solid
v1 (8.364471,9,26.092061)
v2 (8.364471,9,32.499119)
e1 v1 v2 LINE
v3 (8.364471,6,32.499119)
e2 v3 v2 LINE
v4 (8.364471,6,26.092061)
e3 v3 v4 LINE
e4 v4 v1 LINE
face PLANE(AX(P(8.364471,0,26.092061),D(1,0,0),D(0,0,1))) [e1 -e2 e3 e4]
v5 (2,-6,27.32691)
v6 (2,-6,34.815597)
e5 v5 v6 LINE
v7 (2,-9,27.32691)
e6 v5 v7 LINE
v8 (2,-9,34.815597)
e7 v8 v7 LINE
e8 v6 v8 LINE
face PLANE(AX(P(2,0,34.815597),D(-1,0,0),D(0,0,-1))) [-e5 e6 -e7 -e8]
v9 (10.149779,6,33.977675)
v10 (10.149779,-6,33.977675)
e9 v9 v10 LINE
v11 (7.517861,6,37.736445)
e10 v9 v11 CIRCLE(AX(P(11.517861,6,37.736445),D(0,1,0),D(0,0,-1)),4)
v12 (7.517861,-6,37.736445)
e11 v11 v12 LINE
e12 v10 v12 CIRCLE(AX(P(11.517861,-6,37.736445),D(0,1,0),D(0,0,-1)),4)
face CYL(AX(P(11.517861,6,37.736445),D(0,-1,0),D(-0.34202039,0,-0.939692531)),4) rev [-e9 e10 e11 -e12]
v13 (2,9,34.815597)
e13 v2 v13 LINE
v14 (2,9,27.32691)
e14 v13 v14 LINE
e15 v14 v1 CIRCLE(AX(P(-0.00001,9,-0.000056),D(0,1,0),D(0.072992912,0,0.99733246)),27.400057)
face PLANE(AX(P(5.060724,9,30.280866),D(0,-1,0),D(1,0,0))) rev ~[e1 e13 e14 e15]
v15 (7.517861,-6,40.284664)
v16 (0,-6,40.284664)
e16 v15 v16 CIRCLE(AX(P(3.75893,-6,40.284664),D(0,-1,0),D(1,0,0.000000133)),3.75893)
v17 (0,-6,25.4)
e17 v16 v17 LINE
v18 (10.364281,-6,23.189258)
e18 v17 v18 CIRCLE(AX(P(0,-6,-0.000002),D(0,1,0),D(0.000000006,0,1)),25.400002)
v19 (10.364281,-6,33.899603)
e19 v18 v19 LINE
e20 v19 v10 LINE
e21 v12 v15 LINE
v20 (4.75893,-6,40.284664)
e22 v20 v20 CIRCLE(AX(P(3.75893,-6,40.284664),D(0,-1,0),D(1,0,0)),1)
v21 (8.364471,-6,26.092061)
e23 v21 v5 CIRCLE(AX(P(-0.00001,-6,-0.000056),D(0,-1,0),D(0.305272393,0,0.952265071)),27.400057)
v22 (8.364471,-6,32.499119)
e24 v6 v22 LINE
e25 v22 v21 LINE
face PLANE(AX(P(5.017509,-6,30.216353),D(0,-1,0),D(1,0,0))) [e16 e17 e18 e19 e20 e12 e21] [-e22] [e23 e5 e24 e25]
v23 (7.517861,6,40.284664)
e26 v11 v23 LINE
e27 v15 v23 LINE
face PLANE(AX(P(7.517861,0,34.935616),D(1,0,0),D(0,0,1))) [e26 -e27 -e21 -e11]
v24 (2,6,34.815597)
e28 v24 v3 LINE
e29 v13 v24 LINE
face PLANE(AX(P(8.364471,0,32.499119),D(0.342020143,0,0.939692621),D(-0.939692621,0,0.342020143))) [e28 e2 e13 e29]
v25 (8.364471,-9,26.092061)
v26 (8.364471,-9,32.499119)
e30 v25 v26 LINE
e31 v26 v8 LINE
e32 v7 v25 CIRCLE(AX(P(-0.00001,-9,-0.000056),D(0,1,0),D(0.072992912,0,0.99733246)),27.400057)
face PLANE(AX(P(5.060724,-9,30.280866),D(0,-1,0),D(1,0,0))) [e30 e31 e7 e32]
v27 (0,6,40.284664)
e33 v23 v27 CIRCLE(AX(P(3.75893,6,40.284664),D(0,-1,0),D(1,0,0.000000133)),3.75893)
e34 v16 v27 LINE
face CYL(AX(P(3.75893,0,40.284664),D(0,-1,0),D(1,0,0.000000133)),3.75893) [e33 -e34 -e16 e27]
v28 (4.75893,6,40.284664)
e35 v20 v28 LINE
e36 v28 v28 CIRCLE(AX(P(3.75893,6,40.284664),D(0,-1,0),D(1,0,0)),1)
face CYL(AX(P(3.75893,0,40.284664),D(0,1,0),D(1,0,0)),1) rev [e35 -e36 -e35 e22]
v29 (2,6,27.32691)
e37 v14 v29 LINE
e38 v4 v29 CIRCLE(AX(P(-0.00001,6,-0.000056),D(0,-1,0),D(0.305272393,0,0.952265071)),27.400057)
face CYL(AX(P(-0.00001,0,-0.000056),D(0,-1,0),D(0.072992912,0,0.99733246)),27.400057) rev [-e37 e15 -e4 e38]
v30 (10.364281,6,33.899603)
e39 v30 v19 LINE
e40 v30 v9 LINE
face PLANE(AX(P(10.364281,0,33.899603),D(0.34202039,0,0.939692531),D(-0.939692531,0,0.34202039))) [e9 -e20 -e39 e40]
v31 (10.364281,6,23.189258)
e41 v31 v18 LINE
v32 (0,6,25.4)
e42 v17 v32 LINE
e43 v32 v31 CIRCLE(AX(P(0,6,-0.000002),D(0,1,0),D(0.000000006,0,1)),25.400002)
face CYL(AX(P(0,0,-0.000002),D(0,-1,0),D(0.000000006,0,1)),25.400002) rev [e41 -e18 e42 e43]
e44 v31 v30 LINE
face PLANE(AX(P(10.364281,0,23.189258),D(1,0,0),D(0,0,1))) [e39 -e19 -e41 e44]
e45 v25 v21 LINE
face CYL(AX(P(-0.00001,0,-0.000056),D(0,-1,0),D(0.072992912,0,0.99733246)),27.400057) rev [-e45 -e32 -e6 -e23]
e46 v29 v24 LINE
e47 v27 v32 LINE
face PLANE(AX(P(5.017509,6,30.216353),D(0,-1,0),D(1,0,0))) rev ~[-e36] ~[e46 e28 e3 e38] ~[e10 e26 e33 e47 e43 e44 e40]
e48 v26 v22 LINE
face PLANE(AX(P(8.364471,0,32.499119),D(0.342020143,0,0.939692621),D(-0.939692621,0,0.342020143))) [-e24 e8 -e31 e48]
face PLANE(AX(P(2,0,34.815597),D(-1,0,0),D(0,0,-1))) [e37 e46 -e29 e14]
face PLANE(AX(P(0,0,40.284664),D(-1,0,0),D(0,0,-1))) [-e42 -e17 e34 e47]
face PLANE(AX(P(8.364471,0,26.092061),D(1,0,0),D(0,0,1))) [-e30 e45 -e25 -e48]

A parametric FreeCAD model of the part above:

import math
import FreeCAD as App
import Part
import Sketcher
from FreeCAD import Vector
Q = App.Units.Quantity


def edges_at(feature, points):
    """Names of the edges that pass closest to the given points."""
    edges = feature.Shape.Edges
    near = lambda p: min(range(len(edges)), key=lambda i: edges[i].distToShape(Part.Vertex(*p))[0])
    return sorted({f"Edge{near(p) + 1}" for p in points})

doc = App.newDocument("Part")
params = doc.addObject("Spreadsheet::Sheet", "Params")
for row, (alias, value) in enumerate([
    ("sketch1_diameter", "2 mm"),
    ("pad1_length", "12 mm"),
    ("pad2_length", "18 mm"),
    ("fillet_radius", "4 mm"),
], start=1):
    params.set(f"A{row}", alias)
    params.set(f"B{row}", "=" + value)
    params.setAlias(f"B{row}", alias)

body = doc.addObject("PartDesign::Body", "Body")

sketch1 = doc.addObject("Sketcher::SketchObject", "Sketch")
body.addObject(sketch1)
sketch1.AttachmentSupport = (doc.XZ_Plane, [""])
sketch1.MapMode = "FlatFace"
sketch1.addGeometry([
    Part.ArcOfCircle(Part.Circle(Vector(0, -0.000002, 0), Vector(0, 0, 1), 25.400002), math.radians(65.918071), math.radians(90)),
    Part.LineSegment(Vector(10.364281, 23.189258, 0), Vector(10.364281, 33.899603, 0)),
    Part.LineSegment(Vector(10.364281, 33.899603, 0), Vector(7.517861, 34.935616, 0)),
    Part.LineSegment(Vector(7.517861, 34.935616, 0), Vector(7.517861, 40.284664, 0)),
    Part.ArcOfCircle(Part.Circle(Vector(3.75893, 40.284664, 0), Vector(0, 0, 1), 3.75893), math.radians(0.000008), math.radians(179.999992)),
    Part.LineSegment(Vector(0, 40.284664, 0), Vector(0, 25.4, 0)),
    Part.ArcOfCircle(Part.Circle(Vector(-0.00001, -0.000056, 0), Vector(0, 0, 1), 27.400057), math.radians(72.225448), math.radians(85.814092)),
    Part.LineSegment(Vector(2, 27.32691, 0), Vector(2, 34.815597, 0)),
    Part.LineSegment(Vector(2, 34.815597, 0), Vector(8.364471, 32.499119, 0)),
    Part.LineSegment(Vector(8.364471, 32.499119, 0), Vector(8.364471, 26.092061, 0)),
    Part.Circle(Vector(3.75893, 40.284664, 0), Vector(0, 0, 1), 1),
], False)
sketch1.addConstraint([
    Sketcher.Constraint("Coincident", 0, 1, 1, 1),
    Sketcher.Constraint("Coincident", 1, 2, 2, 1),
    Sketcher.Constraint("Coincident", 2, 2, 3, 1),
    Sketcher.Constraint("Tangent", 3, 2, 4, 1),
    Sketcher.Constraint("Tangent", 4, 2, 5, 1),
    Sketcher.Constraint("Coincident", 5, 2, 0, 2),
    Sketcher.Constraint("Coincident", 6, 2, 7, 1),
    Sketcher.Constraint("Coincident", 7, 2, 8, 1),
    Sketcher.Constraint("Coincident", 8, 2, 9, 1),
    Sketcher.Constraint("Coincident", 9, 2, 6, 1),
    Sketcher.Constraint("Vertical", 1),
    Sketcher.Constraint("Vertical", 3),
    Sketcher.Constraint("Vertical", 5),
    Sketcher.Constraint("Vertical", 7),
    Sketcher.Constraint("Vertical", 9),
    Sketcher.Constraint("Coincident", 0, 3, -1, 1),
    Sketcher.Constraint("Coincident", 10, 3, 4, 3),
    Sketcher.Constraint("PointOnObject", 4, 2, -2),
    Sketcher.Constraint("Parallel", 2, 8),
    Sketcher.Constraint("Diameter", 10, 2.0),
    Sketcher.Constraint("Angle", 2, Q("159.999985 deg")),
    Sketcher.Constraint("DistanceX", -1, 1, 6, 2, 2.0),
    Sketcher.Constraint("DistanceY", -1, 1, 5, 2, 25.4),
    Sketcher.Constraint("Radius", 4, 3.75893),
    Sketcher.Constraint("Radius", 6, 27.400057),
    Sketcher.Constraint("Distance", 8, 6.772929),
    Sketcher.Constraint("DistanceY", 1, 1, 1, 2, 10.710345),
    Sketcher.Constraint("DistanceY", 3, 1, 3, 2, 5.349048),
    Sketcher.Constraint("DistanceY", 5, 2, 5, 1, 14.884664),
    Sketcher.Constraint("DistanceY", 7, 1, 7, 2, 7.488687),
    Sketcher.Constraint("DistanceY", 9, 2, 9, 1, 6.407058),
    Sketcher.Constraint("DistanceY", -1, 1, 6, 2, 27.32691),
])
sketch1.setExpression("Constraints[19]", "Params.sketch1_diameter")
pad1 = doc.addObject("PartDesign::Pad", "Pad")
body.addObject(pad1)
pad1.Profile = sketch1
pad1.setExpression("Length", "Params.pad1_length")
pad1.Midplane = True

sketch2 = doc.addObject("Sketcher::SketchObject", "Sketch001")
body.addObject(sketch2)
sketch2.AttachmentSupport = (doc.XZ_Plane, [""])
sketch2.MapMode = "FlatFace"
sketch2.addGeometry([
    Part.LineSegment(Vector(8.364471, 32.499119, 0), Vector(2, 34.815597, 0)),
    Part.LineSegment(Vector(2, 34.815597, 0), Vector(2, 27.32691, 0)),
    Part.ArcOfCircle(Part.Circle(Vector(-0.00001, -0.000056, 0), Vector(0, 0, 1), 27.400057), math.radians(72.225448), math.radians(85.814092)),
    Part.LineSegment(Vector(8.364471, 26.092061, 0), Vector(8.364471, 32.499119, 0)),
], False)
sketch2.addConstraint([
    Sketcher.Constraint("Coincident", 0, 2, 1, 1),
    Sketcher.Constraint("Coincident", 1, 2, 2, 2),
    Sketcher.Constraint("Coincident", 2, 1, 3, 1),
    Sketcher.Constraint("Coincident", 3, 2, 0, 1),
    Sketcher.Constraint("Vertical", 1),
    Sketcher.Constraint("Vertical", 3),
    Sketcher.Constraint("Angle", 0, Q("160 deg")),
    Sketcher.Constraint("DistanceX", -1, 1, 0, 2, 2.0),
    Sketcher.Constraint("Radius", 2, 27.400057),
    Sketcher.Constraint("Distance", 0, 6.772929),
    Sketcher.Constraint("DistanceY", 1, 2, 1, 1, 7.488687),
    Sketcher.Constraint("DistanceY", 3, 1, 3, 2, 6.407058),
    Sketcher.Constraint("DistanceY", -1, 1, 1, 2, 27.32691),
])
pad2 = doc.addObject("PartDesign::Pad", "Pad001")
body.addObject(pad2)
pad2.Profile = sketch2
pad2.setExpression("Length", "Params.pad2_length")
pad2.Midplane = True
doc.recompute()

fillet = doc.addObject("PartDesign::Fillet", "Fillet")
body.addObject(fillet)
fillet.Base = (pad2, edges_at(pad2, [(7.518, 0, 34.936)]))
fillet.setExpression("Radius", "Params.fillet_radius")

doc.recompute()
